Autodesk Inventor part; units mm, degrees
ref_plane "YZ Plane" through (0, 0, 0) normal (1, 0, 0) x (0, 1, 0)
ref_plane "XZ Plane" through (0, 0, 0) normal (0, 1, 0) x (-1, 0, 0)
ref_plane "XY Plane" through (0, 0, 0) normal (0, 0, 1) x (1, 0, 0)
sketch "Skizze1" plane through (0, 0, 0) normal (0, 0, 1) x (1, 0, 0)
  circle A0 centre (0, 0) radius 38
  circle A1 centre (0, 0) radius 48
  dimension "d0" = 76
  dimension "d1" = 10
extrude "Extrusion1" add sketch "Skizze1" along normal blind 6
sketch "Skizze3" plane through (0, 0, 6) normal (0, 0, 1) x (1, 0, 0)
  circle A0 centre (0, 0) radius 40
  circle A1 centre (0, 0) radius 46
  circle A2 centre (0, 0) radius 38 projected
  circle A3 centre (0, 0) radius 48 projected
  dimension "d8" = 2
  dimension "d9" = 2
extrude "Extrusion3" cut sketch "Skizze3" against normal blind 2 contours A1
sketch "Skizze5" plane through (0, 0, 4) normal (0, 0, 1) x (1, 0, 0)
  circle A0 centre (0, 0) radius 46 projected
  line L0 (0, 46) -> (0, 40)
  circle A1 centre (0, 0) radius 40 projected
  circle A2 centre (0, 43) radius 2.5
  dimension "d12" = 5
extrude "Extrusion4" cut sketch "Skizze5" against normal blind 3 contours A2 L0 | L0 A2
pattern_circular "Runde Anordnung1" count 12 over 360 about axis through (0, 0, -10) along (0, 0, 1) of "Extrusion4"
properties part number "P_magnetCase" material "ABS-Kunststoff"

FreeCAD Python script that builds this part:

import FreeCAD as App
import Part
import Sketcher

doc = App.newDocument("Part")
body = doc.addObject("PartDesign::Body", "Body")

sketch1 = body.newObject("Sketcher::SketchObject", "Sketch")
sketch1.AttachmentSupport = (doc.getObject("XY_Plane"), [""])
sketch1.MapMode = "FlatFace"
sketch1.addGeometry(Part.Circle(App.Vector(0, 0, 0), App.Vector(0, 0, 1), 48), False)
sketch1.addGeometry(Part.Circle(App.Vector(0, 0, 0), App.Vector(0, 0, 1), 38), False)
sketch1.addConstraint(Sketcher.Constraint("Coincident", 0, 3, -1, 1))
sketch1.addConstraint(Sketcher.Constraint("Coincident", 1, 3, -1, 1))
sketch1.addConstraint(Sketcher.Constraint("Diameter", 1, 76.0))
sketch1.addConstraint(Sketcher.Constraint("Diameter", 0, 96.0))
pad1 = body.newObject("PartDesign::Pad", "Pad")
pad1.Profile = sketch1
pad1.Length = 6

sketch2 = body.newObject("Sketcher::SketchObject", "Sketch001")
sketch2.AttachmentSupport = (doc.getObject("XY_Plane"), [""])
sketch2.MapMode = "FlatFace"
sketch2.AttachmentOffset = App.Placement(App.Vector(0, 0, 6), App.Rotation())
sketch2.addGeometry(Part.Circle(App.Vector(0, 0, 0), App.Vector(0, 0, 1), 46), False)
sketch2.addGeometry(Part.Circle(App.Vector(0, 0, 0), App.Vector(0, 0, 1), 40), False)
sketch2.addConstraint(Sketcher.Constraint("Coincident", 0, 3, -1, 1))
sketch2.addConstraint(Sketcher.Constraint("Coincident", 1, 3, -1, 1))
sketch2.addConstraint(Sketcher.Constraint("Diameter", 0, 92.0))
sketch2.addConstraint(Sketcher.Constraint("Diameter", 1, 80.0))
pocket1 = body.newObject("PartDesign::Pocket", "Pocket")
pocket1.Profile = sketch2
pocket1.Length = 2

sketch3 = body.newObject("Sketcher::SketchObject", "Sketch002")
sketch3.AttachmentSupport = (doc.getObject("XY_Plane"), [""])
sketch3.MapMode = "FlatFace"
sketch3.AttachmentOffset = App.Placement(App.Vector(0, 0, 4), App.Rotation())
sketch3.addGeometry(Part.Circle(App.Vector(0, 43, 0), App.Vector(0, 0, 1), 2.5), False)
sketch3.addConstraint(Sketcher.Constraint("PointOnObject", 0, 3, -2))
sketch3.addConstraint(Sketcher.Constraint("Diameter", 0, 5.0))
sketch3.addConstraint(Sketcher.Constraint("DistanceY", -1, 1, 0, 3, 43.0))
pocket2 = body.newObject("PartDesign::Pocket", "Pocket001")
pocket2.Profile = sketch3
pocket2.Length = 3
doc.recompute()

polarpattern = body.newObject("PartDesign::PolarPattern", "PolarPattern")
polarpattern.Originals = [pocket2]
polarpattern.Axis = (doc.getObject("Z_Axis"), [""])
polarpattern.Angle = 360
polarpattern.Occurrences = 12
body.Tip = polarpattern

doc.recompute()
